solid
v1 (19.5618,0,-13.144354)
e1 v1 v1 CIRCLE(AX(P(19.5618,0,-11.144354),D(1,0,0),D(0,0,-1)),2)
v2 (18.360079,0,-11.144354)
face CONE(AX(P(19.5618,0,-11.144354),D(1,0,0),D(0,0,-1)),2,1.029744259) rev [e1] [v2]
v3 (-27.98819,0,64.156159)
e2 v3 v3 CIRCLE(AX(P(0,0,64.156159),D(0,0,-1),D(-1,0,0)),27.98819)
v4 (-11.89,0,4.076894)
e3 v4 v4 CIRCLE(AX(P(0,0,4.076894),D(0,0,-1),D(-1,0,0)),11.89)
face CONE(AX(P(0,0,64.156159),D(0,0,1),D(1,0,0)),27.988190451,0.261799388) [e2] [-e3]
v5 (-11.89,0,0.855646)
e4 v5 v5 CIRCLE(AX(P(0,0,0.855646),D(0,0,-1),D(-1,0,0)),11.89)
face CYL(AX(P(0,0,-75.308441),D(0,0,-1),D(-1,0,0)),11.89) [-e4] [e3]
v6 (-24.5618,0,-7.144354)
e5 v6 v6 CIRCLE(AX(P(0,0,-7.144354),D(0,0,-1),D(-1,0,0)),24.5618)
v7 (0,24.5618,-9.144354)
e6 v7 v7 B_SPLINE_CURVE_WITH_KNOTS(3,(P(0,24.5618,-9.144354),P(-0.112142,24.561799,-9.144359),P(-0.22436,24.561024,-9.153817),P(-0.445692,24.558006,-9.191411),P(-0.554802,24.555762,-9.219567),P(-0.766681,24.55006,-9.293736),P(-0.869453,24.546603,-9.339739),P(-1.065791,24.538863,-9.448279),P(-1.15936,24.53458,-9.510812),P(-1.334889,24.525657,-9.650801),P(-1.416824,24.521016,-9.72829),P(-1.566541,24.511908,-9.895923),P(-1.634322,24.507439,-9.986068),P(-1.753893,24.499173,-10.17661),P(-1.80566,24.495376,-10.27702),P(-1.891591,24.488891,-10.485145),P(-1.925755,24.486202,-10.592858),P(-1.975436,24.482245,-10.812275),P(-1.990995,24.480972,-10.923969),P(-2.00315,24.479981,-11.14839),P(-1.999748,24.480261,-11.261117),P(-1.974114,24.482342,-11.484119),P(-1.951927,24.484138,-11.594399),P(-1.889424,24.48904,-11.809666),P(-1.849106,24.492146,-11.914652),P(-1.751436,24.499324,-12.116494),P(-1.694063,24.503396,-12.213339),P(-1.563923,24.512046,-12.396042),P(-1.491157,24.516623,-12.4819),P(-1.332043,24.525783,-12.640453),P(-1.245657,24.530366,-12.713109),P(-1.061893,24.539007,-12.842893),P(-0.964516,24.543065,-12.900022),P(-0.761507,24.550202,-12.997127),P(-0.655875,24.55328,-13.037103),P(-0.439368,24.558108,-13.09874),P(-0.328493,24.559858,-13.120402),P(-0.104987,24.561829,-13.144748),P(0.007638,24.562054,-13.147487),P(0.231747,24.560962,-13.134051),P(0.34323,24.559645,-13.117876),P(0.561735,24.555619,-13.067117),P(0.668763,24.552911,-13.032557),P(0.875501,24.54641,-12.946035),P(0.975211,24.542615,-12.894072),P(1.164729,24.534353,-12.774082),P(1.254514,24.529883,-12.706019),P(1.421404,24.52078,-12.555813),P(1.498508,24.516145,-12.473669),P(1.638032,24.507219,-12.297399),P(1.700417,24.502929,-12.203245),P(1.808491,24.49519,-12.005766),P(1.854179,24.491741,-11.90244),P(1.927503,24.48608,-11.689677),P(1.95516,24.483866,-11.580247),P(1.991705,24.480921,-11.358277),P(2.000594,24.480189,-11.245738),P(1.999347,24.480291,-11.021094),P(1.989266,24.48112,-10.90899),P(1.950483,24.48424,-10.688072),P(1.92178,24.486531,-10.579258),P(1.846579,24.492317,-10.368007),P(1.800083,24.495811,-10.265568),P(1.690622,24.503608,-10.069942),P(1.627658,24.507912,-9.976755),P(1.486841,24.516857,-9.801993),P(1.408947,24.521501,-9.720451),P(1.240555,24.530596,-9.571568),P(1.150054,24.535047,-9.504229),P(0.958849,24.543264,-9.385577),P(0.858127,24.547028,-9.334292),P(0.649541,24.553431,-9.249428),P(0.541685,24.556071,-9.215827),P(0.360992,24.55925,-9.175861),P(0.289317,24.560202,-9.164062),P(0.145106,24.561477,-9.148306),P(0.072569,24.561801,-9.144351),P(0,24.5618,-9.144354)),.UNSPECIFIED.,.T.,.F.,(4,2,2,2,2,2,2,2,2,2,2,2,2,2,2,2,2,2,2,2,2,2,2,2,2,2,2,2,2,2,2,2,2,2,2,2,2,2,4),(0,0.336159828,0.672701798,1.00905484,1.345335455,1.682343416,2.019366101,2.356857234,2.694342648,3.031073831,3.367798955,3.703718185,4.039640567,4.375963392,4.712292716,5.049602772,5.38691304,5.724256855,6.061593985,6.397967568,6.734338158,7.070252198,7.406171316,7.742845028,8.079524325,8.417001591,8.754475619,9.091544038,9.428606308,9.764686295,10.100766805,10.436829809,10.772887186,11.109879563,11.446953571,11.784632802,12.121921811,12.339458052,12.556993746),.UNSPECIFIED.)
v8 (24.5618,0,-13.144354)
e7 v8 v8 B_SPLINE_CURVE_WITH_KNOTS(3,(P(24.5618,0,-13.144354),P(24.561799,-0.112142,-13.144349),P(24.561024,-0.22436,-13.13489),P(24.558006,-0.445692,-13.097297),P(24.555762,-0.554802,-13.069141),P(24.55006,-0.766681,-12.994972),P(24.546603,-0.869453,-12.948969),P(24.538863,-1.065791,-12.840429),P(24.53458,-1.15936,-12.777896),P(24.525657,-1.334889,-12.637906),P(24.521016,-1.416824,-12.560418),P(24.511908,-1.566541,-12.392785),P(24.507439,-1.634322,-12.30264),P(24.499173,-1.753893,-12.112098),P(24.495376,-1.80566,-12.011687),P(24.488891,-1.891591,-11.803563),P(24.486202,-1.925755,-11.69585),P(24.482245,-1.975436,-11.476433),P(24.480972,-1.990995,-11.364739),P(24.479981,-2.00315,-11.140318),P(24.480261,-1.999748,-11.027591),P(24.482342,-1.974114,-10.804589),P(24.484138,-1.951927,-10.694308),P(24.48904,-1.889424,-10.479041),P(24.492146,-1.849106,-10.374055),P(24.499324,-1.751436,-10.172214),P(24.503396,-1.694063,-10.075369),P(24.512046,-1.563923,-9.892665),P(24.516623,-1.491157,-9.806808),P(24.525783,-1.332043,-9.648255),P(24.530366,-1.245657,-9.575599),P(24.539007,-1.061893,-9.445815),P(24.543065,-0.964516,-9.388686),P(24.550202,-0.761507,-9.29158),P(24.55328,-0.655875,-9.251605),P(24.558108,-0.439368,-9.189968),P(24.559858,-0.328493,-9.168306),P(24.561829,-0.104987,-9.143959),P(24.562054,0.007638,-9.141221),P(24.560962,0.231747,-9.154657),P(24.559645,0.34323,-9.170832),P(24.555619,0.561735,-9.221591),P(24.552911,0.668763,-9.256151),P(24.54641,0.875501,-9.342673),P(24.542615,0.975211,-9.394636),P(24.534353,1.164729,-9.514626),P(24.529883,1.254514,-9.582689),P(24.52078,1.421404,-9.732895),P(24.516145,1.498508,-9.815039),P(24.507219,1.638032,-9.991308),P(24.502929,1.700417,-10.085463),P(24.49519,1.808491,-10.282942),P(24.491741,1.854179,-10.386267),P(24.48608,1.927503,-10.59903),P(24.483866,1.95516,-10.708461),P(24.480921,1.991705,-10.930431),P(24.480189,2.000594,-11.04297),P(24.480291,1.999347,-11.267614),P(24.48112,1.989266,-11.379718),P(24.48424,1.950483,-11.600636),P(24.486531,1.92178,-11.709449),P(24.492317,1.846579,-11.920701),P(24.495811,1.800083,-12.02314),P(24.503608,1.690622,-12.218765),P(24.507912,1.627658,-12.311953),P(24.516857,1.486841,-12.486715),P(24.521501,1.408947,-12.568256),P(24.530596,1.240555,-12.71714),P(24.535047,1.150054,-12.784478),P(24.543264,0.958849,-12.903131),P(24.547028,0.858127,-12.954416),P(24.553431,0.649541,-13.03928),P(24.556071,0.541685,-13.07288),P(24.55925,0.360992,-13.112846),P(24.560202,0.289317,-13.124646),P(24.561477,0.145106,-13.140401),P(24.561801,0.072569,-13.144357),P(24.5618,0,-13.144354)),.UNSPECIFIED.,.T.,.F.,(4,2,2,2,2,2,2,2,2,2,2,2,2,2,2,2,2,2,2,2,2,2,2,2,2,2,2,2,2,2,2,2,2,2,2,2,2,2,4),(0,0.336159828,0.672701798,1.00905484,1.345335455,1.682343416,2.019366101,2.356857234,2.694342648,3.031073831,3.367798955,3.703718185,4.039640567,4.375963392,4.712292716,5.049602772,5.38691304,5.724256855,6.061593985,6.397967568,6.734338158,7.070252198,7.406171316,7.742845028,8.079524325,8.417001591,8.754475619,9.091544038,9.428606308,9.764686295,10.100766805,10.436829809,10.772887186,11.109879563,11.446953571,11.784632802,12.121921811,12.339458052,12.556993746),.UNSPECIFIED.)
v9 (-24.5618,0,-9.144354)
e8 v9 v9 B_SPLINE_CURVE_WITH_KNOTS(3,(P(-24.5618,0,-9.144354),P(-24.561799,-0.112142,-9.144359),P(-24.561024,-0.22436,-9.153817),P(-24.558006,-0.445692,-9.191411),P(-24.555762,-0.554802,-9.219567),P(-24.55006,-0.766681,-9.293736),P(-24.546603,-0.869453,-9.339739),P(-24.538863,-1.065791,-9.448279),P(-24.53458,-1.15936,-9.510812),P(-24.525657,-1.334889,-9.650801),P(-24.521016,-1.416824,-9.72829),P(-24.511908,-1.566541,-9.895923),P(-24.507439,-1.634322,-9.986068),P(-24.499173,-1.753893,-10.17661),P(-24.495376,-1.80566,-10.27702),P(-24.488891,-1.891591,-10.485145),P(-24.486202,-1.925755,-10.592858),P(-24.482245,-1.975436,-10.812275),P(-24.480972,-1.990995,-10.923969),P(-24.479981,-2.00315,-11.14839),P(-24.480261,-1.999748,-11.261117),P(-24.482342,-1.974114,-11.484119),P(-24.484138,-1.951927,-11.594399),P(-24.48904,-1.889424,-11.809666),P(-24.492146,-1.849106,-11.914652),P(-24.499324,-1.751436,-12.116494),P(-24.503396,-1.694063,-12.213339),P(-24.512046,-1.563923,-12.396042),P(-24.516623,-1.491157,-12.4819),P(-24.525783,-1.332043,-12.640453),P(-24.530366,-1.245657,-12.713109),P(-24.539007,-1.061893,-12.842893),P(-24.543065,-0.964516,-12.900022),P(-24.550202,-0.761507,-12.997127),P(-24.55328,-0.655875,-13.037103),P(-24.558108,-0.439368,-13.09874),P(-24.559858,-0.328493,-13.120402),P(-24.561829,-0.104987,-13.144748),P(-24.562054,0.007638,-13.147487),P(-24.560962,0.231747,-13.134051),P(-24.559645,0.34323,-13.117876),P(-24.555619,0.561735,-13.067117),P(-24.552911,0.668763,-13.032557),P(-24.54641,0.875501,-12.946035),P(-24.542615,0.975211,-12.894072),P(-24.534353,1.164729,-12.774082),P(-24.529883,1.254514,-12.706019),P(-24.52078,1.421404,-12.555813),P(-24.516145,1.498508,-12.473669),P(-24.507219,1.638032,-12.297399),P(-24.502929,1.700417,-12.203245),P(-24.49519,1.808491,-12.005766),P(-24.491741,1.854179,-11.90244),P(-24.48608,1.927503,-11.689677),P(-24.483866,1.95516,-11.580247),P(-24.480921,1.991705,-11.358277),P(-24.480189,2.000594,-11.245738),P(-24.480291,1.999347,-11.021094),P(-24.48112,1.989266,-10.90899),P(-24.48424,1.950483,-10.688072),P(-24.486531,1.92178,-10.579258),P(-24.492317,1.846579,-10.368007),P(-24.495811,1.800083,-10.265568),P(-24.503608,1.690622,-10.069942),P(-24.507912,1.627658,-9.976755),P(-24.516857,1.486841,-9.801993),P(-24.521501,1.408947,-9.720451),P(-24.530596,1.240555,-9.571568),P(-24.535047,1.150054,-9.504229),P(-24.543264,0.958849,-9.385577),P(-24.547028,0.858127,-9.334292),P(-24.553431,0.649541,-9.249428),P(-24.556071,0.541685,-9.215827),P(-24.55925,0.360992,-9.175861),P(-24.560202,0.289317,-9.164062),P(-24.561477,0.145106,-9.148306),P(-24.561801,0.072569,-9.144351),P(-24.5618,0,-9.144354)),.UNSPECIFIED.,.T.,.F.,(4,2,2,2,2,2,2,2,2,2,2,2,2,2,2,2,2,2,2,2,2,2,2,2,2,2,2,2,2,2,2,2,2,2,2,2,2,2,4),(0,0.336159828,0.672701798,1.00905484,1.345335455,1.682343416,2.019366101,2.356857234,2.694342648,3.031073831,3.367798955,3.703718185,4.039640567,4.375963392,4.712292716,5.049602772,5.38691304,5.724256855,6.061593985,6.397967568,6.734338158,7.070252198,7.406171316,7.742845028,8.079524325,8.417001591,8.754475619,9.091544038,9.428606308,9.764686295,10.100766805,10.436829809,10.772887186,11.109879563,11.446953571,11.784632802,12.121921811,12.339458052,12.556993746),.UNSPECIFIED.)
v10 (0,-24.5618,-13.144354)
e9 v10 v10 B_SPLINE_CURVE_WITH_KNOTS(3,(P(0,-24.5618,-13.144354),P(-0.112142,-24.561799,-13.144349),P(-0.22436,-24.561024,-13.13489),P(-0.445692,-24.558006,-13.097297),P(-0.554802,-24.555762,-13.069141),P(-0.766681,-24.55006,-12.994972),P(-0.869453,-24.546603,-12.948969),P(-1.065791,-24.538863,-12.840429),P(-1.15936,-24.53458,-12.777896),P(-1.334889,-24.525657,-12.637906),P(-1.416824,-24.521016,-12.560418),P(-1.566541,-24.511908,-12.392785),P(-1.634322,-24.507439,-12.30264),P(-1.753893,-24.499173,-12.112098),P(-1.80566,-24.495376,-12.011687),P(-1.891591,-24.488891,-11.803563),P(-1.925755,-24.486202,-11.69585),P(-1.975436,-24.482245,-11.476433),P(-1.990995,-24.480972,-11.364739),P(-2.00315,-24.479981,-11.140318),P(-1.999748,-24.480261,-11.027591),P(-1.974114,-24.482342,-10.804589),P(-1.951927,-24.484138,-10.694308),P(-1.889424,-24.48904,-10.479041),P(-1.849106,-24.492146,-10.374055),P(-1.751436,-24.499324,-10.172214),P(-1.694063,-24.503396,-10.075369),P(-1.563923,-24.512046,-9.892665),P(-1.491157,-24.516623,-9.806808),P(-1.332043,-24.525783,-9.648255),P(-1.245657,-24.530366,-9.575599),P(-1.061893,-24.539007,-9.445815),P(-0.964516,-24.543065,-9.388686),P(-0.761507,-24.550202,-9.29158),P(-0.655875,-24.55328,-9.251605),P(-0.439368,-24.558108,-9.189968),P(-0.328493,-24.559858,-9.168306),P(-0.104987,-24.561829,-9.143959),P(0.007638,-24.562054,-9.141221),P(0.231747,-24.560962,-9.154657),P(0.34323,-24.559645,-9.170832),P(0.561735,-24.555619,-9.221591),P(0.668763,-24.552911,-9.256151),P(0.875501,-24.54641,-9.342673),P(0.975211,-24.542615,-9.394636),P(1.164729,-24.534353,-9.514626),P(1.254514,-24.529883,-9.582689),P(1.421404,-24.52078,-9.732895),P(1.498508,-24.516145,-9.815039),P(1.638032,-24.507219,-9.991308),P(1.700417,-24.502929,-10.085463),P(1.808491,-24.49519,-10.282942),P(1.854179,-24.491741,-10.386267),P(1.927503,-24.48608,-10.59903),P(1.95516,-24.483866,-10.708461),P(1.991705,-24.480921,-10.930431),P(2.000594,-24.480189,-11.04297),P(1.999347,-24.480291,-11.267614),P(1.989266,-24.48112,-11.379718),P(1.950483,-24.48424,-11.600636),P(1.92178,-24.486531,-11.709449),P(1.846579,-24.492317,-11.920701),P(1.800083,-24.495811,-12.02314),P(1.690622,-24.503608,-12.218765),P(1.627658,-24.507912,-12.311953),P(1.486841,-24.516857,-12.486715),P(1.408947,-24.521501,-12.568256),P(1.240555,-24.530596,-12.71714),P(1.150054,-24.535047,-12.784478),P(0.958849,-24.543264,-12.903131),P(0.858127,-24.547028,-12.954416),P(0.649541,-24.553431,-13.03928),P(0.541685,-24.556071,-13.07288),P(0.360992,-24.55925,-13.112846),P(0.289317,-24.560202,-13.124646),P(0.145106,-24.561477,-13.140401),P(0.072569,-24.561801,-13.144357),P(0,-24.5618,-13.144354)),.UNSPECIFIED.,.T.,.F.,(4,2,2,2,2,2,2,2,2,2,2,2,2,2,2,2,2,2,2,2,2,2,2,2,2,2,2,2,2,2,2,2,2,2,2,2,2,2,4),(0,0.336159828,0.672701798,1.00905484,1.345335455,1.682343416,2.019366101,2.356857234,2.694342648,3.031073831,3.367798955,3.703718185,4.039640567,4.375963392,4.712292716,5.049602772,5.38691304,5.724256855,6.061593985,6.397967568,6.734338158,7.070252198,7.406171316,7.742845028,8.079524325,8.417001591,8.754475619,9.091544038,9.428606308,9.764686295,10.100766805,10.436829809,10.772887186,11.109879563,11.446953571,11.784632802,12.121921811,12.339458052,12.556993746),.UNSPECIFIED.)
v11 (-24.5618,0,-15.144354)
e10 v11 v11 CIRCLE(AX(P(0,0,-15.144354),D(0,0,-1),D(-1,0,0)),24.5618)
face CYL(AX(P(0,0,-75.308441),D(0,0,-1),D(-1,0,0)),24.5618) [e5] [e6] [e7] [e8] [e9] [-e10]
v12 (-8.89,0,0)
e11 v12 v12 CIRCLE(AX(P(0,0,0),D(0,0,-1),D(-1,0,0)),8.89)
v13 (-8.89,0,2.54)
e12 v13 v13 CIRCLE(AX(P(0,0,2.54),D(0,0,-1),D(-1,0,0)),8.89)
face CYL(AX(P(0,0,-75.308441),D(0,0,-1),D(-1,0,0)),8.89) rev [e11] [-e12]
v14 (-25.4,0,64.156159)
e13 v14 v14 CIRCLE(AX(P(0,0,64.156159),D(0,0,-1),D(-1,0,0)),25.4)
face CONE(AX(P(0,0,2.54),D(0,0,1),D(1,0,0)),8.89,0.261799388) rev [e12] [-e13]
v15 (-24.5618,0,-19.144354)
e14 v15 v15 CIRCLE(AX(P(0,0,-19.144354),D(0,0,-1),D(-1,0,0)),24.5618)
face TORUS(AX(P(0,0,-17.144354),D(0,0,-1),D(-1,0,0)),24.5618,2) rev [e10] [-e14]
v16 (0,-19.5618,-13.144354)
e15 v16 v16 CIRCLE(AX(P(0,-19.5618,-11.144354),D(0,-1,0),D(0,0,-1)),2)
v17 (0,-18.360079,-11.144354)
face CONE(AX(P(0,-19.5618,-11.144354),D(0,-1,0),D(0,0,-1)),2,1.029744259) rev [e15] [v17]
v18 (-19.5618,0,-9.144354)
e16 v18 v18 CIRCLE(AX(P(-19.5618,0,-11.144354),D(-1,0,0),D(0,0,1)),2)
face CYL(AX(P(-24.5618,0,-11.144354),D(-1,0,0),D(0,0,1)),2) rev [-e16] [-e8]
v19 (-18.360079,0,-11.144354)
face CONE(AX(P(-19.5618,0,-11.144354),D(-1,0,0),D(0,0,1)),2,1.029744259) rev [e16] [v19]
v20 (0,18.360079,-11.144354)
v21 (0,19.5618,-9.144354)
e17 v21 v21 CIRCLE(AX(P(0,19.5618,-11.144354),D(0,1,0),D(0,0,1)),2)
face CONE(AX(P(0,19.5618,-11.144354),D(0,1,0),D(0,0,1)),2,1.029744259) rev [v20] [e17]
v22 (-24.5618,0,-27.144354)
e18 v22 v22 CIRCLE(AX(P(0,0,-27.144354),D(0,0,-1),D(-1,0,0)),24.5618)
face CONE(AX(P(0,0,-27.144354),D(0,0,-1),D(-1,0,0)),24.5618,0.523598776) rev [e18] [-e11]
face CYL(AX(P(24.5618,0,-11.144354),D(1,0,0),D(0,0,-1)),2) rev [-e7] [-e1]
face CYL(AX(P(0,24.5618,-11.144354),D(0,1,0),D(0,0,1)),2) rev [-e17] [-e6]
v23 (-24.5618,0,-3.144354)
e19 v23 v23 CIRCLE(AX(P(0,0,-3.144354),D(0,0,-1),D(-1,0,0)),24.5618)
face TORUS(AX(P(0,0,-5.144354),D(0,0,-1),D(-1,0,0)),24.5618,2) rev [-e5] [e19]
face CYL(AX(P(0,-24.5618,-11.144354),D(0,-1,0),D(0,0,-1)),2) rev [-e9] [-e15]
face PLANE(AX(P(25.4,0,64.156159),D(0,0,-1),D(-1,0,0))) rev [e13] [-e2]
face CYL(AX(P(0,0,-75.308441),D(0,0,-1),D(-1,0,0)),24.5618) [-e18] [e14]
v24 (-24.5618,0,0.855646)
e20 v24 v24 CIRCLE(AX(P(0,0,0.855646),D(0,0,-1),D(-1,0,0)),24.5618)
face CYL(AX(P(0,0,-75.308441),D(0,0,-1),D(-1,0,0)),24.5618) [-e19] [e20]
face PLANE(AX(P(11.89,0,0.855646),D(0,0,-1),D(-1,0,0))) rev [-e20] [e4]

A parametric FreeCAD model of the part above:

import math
import FreeCAD as App
import Part
import Sketcher

V = App.Vector
Q = App.Units.Quantity

doc = App.newDocument("Part")
body = doc.addObject("PartDesign::Body", "Body")

sketch1 = doc.addObject("Sketcher::SketchObject", "Sketch")
body.addObject(sketch1)
sketch1.AttachmentSupport = (doc.XZ_Plane, [""])
sketch1.MapMode = "FlatFace"
sketch1.addGeometry([
    Part.LineSegment(V(24.5618, -27.144354, 0), V(8.89, 0, 0)),
    Part.LineSegment(V(8.89, 0, 0), V(8.89, 2.54, 0)),
    Part.LineSegment(V(8.89, 2.54, 0), V(25.4, 64.156159, 0)),
    Part.LineSegment(V(25.4, 64.156159, 0), V(27.98819, 64.156159, 0)),
    Part.LineSegment(V(27.98819, 64.156159, 0), V(11.89, 4.076894, 0)),
    Part.LineSegment(V(11.89, 4.076894, 0), V(11.89, 0.855646, 0)),
    Part.LineSegment(V(11.89, 0.855646, 0), V(24.5618, 0.855646, 0)),
    Part.LineSegment(V(24.5618, 0.855646, 0), V(24.5618, -3.144354, 0)),
    Part.ArcOfCircle(Part.Circle(V(24.5618, -5.144354, 0), V(0, 0, 1), 2), math.radians(90), math.radians(270)),
    Part.LineSegment(V(24.5618, -7.144354, 0), V(24.5618, -15.144354, 0)),
    Part.ArcOfCircle(Part.Circle(V(24.5618, -17.144354, 0), V(0, 0, 1), 2), math.radians(90), math.radians(270)),
    Part.LineSegment(V(24.5618, -19.144354, 0), V(24.5618, -27.144354, 0)),
], False)
sketch1.addConstraint([
    Sketcher.Constraint("Coincident", 0, 2, 1, 1),
    Sketcher.Constraint("Coincident", 1, 2, 2, 1),
    Sketcher.Constraint("Coincident", 2, 2, 3, 1),
    Sketcher.Constraint("Coincident", 3, 2, 4, 1),
    Sketcher.Constraint("Coincident", 4, 2, 5, 1),
    Sketcher.Constraint("Coincident", 5, 2, 6, 1),
    Sketcher.Constraint("Coincident", 6, 2, 7, 1),
    Sketcher.Constraint("Coincident", 7, 2, 8, 1),
    Sketcher.Constraint("Coincident", 8, 2, 9, 1),
    Sketcher.Constraint("Coincident", 9, 2, 10, 1),
    Sketcher.Constraint("Coincident", 10, 2, 11, 1),
    Sketcher.Constraint("Coincident", 11, 2, 0, 1),
    Sketcher.Constraint("Vertical", 1),
    Sketcher.Constraint("Horizontal", 3),
    Sketcher.Constraint("Vertical", 5),
    Sketcher.Constraint("Horizontal", 6),
    Sketcher.Constraint("Vertical", 7),
    Sketcher.Constraint("Vertical", 9),
    Sketcher.Constraint("Vertical", 11),
    Sketcher.Constraint("Equal", 8, 10),
    Sketcher.Constraint("PointOnObject", 0, 2, -1),
    Sketcher.Constraint("Parallel", 2, 4),
    Sketcher.Constraint("Vertical", 8, 3, 10, 3),
    Sketcher.Constraint("Vertical", 10, 3, 6, 2),
    Sketcher.Constraint("Vertical", 7, 2, 8, 2),
    Sketcher.Constraint("Vertical", 9, 2, 10, 2),
    Sketcher.Constraint("Equal", 9, 11),
    Sketcher.Constraint("Radius", 8, Q("2 mm")),
    Sketcher.Constraint("DistanceY", 7, 2, 7, 1, Q("4 mm")),
    Sketcher.Constraint("DistanceY", 9, 2, 9, 1, Q("8 mm")),
    Sketcher.Constraint("Angle", 0, Q("120 deg")),
    Sketcher.Constraint("Angle", 2, Q("75 deg")),
    Sketcher.Constraint("DistanceX", 1, 2, 4, 2, Q("3 mm")),
    Sketcher.Constraint("DistanceY", 1, 1, 1, 2, Q("2.54 mm")),
    Sketcher.Constraint("DistanceX", -1, 1, 2, 2, Q("25.4 mm")),
    Sketcher.Constraint("DistanceX", -1, 1, 0, 2, Q("8.89 mm")),
    Sketcher.Constraint("DistanceX", 6, 1, 6, 2, Q("12.6718 mm")),
    Sketcher.Constraint("DistanceX", 3, 1, 3, 2, Q("2.58819 mm")),
])
revolution = doc.addObject("PartDesign::Revolution", "Revolution")
body.addObject(revolution)
revolution.Profile = sketch1
revolution.ReferenceAxis = (sketch1, ["V_Axis"])
revolution.Angle = 360

sketch2 = doc.addObject("Sketcher::SketchObject", "Sketch001")
body.addObject(sketch2)
sketch2.AttachmentSupport = (doc.YZ_Plane, [""])
sketch2.MapMode = "FlatFace"
sketch2.AttachmentOffset = App.Placement(V(0, 0, -24.5618), App.Rotation())
sketch2.addGeometry(Part.Circle(V(0, -11.144354, 0), V(0, 0, 1), 2), False)
sketch2.addConstraint([
    Sketcher.Constraint("PointOnObject", 0, 3, -2),
    Sketcher.Constraint("Diameter", 0, Q("4 mm")),
    Sketcher.Constraint("DistanceY", 0, 3, -1, 1, Q("11.144354 mm")),
])
doc.recompute()
hole = doc.addObject("PartDesign::Hole", "Hole")
body.addObject(hole)
hole.Profile = sketch2
hole.ThreadType = "None"
hole.Diameter = 4
hole.DepthType = "Dimension"
hole.Depth = 5
hole.DrillPoint = "Angled"
hole.DrillPointAngle = 118
hole.Reversed = True

sketch3 = doc.addObject("Sketcher::SketchObject", "Sketch002")
body.addObject(sketch3)
sketch3.AttachmentSupport = (doc.YZ_Plane, [""])
sketch3.MapMode = "FlatFace"
sketch3.addGeometry(Part.Circle(V(0, 0, 0), V(0, 0, 1), 2), False)
sketch3.addConstraint([
    Sketcher.Constraint("Coincident", 0, 3, -1, 1),
    Sketcher.Constraint("Diameter", 0, Q("4 mm")),
])
doc.recompute()
hole2 = doc.addObject("PartDesign::Hole", "Hole001")
body.addObject(hole2)
hole2.Profile = sketch3
hole2.ThreadType = "None"
hole2.Diameter = 4
hole2.DepthType = "Dimension"
hole2.Depth = 5
hole2.DrillPoint = "Angled"
hole2.DrillPointAngle = 118
hole2.Reversed = True

sketch4 = doc.addObject("Sketcher::SketchObject", "Sketch003")
body.addObject(sketch4)
sketch4.AttachmentSupport = (doc.XZ_Plane, [""])
sketch4.MapMode = "FlatFace"
sketch4.AttachmentOffset = App.Placement(V(0, 0, -24.5618), App.Rotation())
sketch4.addGeometry(Part.Circle(V(0, -11.144354, 0), V(0, 0, 1), 2), False)
sketch4.addConstraint([
    Sketcher.Constraint("PointOnObject", 0, 3, -2),
    Sketcher.Constraint("Diameter", 0, Q("4 mm")),
    Sketcher.Constraint("DistanceY", 0, 3, -1, 1, Q("11.144354 mm")),
])
doc.recompute()
hole3 = doc.addObject("PartDesign::Hole", "Hole002")
body.addObject(hole3)
hole3.Profile = sketch4
hole3.ThreadType = "None"
hole3.Diameter = 4
hole3.DepthType = "Dimension"
hole3.Depth = 5
hole3.DrillPoint = "Angled"
hole3.DrillPointAngle = 118
hole3.Reversed = True

sketch5 = doc.addObject("Sketcher::SketchObject", "Sketch004")
body.addObject(sketch5)
sketch5.AttachmentSupport = (doc.YZ_Plane, [""])
sketch5.MapMode = "FlatFace"
sketch5.AttachmentOffset = App.Placement(V(0, 0, 24.5618), App.Rotation())
sketch5.addGeometry(Part.Circle(V(0, -11.144354, 0), V(0, 0, 1), 2), False)
sketch5.addConstraint([
    Sketcher.Constraint("PointOnObject", 0, 3, -2),
    Sketcher.Constraint("Diameter", 0, Q("4 mm")),
    Sketcher.Constraint("DistanceY", 0, 3, -1, 1, Q("11.144354 mm")),
])
doc.recompute()
hole4 = doc.addObject("PartDesign::Hole", "Hole003")
body.addObject(hole4)
hole4.Profile = sketch5
hole4.ThreadType = "None"
hole4.Diameter = 4
hole4.DepthType = "Dimension"
hole4.Depth = 5
hole4.DrillPoint = "Angled"
hole4.DrillPointAngle = 118

sketch6 = doc.addObject("Sketcher::SketchObject", "Sketch005")
body.addObject(sketch6)
sketch6.AttachmentSupport = (doc.XZ_Plane, [""])
sketch6.MapMode = "FlatFace"
sketch6.AttachmentOffset = App.Placement(V(0, 0, 24.5618), App.Rotation())
sketch6.addGeometry(Part.Circle(V(0, -11.144354, 0), V(0, 0, 1), 2), False)
sketch6.addConstraint([
    Sketcher.Constraint("PointOnObject", 0, 3, -2),
    Sketcher.Constraint("Diameter", 0, Q("4 mm")),
    Sketcher.Constraint("DistanceY", 0, 3, -1, 1, Q("11.144354 mm")),
])
doc.recompute()
hole5 = doc.addObject("PartDesign::Hole", "Hole004")
body.addObject(hole5)
hole5.Profile = sketch6
hole5.ThreadType = "None"
hole5.Diameter = 4
hole5.DepthType = "Dimension"
hole5.Depth = 5
hole5.DrillPoint = "Angled"
hole5.DrillPointAngle = 118

doc.recompute()
